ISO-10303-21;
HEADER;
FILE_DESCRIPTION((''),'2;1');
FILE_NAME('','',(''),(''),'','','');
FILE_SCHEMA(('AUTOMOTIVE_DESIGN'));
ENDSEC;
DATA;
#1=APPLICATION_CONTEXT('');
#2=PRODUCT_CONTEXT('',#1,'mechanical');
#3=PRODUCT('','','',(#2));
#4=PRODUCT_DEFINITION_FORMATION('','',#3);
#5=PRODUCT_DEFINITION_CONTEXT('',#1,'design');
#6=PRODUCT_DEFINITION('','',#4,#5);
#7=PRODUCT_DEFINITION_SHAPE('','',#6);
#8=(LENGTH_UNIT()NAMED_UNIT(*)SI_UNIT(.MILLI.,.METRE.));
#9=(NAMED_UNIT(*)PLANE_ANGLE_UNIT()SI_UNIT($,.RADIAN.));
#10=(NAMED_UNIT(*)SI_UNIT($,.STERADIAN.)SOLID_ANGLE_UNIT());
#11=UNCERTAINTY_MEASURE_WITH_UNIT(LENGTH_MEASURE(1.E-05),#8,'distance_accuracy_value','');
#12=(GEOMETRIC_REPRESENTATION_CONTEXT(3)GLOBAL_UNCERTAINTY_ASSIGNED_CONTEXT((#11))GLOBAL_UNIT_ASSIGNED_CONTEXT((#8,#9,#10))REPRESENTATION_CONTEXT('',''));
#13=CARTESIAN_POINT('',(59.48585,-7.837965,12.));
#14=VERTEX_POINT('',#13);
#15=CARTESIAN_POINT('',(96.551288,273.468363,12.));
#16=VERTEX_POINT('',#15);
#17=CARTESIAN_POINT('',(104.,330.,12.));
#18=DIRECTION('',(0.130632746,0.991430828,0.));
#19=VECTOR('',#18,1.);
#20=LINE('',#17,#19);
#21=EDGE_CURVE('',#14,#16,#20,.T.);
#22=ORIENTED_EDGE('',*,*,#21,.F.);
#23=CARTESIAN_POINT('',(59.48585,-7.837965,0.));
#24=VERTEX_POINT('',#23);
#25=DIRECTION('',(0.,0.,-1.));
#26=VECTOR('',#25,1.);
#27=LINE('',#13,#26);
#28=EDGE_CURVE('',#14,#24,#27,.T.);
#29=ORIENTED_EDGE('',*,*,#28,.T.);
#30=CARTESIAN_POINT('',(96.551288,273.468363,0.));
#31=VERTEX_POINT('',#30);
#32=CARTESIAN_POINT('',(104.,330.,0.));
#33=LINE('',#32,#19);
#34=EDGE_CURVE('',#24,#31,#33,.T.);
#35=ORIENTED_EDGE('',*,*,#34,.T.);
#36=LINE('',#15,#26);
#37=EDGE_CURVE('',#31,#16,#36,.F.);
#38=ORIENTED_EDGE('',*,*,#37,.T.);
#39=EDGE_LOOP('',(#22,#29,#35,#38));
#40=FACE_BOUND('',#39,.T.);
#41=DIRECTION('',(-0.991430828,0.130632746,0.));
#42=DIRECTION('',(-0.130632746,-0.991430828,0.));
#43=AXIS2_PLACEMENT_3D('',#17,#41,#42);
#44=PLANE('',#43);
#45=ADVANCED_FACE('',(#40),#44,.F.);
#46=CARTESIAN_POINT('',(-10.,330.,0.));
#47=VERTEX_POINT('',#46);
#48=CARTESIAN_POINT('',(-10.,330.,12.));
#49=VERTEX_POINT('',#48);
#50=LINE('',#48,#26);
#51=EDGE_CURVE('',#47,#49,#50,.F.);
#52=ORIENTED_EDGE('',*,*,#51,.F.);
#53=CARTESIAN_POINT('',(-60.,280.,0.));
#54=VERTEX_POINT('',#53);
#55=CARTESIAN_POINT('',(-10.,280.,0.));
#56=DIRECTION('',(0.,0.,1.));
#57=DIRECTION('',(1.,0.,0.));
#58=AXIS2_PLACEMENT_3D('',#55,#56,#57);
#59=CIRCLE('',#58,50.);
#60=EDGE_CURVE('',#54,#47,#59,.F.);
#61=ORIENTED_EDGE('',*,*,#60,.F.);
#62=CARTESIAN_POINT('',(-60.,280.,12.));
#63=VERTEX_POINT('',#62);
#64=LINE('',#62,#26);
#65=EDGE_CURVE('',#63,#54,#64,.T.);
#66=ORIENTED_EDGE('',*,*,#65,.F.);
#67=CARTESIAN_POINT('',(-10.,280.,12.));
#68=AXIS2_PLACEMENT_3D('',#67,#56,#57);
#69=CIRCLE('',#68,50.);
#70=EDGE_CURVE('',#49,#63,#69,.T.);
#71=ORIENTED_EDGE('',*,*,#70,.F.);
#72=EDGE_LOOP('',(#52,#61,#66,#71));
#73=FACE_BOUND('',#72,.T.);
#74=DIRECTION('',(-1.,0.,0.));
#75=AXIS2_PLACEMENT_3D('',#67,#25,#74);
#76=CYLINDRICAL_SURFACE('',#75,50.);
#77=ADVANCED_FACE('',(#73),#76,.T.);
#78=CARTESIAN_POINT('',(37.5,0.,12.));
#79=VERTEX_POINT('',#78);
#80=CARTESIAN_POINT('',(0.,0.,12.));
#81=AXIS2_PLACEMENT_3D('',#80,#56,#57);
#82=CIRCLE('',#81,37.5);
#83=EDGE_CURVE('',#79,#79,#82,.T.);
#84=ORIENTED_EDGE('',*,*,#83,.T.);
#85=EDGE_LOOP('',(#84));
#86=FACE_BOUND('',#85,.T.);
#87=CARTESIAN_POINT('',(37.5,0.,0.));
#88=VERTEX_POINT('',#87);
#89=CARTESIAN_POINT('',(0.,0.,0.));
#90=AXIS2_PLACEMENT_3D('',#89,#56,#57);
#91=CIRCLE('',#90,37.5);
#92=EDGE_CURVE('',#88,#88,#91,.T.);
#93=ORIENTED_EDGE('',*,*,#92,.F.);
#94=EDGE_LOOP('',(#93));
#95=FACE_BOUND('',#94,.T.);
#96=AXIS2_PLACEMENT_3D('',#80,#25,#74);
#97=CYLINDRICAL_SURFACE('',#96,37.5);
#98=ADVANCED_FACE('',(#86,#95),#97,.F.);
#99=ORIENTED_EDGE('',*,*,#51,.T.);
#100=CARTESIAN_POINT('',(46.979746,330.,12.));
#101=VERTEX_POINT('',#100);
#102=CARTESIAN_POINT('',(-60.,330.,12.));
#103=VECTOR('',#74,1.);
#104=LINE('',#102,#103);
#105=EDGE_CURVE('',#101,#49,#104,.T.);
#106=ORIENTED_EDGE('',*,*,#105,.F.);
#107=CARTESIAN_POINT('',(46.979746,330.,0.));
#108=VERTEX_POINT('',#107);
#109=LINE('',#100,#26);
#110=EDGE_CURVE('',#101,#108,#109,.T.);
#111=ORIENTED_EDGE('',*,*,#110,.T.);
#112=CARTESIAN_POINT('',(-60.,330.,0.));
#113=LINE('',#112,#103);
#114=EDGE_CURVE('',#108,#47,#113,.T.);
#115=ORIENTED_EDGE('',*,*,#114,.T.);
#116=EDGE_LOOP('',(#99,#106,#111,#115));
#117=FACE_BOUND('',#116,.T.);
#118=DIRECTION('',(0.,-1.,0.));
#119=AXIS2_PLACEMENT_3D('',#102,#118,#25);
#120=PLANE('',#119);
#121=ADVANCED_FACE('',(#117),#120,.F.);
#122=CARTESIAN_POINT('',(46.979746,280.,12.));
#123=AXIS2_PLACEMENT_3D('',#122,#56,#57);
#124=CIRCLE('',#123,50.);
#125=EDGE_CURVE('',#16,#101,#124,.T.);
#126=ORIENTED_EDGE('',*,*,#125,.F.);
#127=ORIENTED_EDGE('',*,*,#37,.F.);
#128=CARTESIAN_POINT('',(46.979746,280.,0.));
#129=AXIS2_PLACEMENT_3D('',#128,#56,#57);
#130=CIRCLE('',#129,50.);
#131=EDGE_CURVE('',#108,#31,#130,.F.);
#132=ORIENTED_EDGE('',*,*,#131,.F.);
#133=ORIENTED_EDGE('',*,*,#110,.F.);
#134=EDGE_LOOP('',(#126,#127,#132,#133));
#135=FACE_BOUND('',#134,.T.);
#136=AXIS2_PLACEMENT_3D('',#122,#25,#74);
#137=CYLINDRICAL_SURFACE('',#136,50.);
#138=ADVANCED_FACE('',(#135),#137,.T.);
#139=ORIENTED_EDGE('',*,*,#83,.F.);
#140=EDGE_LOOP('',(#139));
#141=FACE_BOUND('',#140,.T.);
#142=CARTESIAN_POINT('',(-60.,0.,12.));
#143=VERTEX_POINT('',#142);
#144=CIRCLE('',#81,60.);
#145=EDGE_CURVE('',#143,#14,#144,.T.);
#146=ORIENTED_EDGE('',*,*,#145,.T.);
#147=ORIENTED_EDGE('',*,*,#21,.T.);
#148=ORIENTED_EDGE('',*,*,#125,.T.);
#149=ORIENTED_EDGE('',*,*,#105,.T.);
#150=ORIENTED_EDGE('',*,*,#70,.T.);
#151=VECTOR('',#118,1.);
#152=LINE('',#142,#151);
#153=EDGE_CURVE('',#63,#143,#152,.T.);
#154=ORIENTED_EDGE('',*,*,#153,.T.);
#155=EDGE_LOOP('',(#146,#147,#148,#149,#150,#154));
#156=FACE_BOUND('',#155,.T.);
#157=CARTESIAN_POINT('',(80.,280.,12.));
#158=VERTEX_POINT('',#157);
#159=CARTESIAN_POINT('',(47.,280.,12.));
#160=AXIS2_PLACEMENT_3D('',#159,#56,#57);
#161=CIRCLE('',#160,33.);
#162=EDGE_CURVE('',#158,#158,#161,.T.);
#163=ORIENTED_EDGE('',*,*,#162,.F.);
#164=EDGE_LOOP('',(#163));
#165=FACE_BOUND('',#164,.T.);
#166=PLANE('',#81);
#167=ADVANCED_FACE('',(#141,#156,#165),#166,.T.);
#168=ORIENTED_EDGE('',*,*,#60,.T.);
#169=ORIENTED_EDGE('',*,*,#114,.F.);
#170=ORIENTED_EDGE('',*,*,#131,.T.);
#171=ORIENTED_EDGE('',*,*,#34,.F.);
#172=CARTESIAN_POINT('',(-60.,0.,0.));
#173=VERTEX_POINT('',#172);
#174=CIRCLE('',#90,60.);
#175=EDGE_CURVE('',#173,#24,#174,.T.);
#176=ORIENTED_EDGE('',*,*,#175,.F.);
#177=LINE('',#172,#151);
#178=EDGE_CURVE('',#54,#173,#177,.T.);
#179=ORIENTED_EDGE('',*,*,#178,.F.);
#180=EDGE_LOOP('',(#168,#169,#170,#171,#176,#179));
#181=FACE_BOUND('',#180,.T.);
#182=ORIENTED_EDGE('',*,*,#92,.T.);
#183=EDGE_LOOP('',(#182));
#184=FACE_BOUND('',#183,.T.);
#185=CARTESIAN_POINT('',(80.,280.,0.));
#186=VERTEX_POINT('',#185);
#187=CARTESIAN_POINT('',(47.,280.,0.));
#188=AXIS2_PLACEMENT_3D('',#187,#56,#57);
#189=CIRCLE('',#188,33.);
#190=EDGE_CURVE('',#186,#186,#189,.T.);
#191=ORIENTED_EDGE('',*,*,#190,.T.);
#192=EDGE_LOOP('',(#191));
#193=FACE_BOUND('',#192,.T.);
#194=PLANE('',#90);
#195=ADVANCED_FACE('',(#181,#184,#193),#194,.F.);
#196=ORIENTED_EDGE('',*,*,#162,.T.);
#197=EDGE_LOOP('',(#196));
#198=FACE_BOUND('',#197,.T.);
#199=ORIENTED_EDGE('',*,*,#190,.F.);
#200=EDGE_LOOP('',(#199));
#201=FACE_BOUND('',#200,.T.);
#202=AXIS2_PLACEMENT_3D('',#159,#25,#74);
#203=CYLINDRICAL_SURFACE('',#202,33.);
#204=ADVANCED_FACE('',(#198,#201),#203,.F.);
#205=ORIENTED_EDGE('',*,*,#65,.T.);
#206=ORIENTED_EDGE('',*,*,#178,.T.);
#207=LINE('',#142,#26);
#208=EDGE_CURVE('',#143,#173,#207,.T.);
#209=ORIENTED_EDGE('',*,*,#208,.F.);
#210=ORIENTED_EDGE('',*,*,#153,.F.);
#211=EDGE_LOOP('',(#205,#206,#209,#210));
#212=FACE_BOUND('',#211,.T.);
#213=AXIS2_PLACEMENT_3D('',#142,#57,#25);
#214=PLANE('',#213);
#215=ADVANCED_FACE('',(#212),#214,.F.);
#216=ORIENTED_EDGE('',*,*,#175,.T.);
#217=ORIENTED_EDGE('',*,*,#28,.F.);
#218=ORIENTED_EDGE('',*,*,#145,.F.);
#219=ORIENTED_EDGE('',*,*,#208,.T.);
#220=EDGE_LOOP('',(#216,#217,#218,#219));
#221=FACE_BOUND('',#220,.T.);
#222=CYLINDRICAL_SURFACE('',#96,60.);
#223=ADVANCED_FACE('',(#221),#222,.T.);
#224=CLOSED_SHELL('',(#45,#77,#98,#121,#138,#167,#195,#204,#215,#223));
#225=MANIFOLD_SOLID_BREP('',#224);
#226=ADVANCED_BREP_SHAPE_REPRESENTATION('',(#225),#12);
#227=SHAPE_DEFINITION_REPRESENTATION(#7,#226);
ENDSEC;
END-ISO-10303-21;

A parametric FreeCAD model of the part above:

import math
import FreeCAD as App
import Part
import Sketcher
from FreeCAD import Vector


def edges_at(feature, points):
    """Names of the edges that pass closest to the given points."""
    edges = feature.Shape.Edges
    near = lambda p: min(range(len(edges)), key=lambda i: edges[i].distToShape(Part.Vertex(*p))[0])
    return sorted({f"Edge{near(p) + 1}" for p in points})

doc = App.newDocument("Part")
body = doc.addObject("PartDesign::Body", "Body")

# Sketch on XY plane
sketch1 = body.newObject("Sketcher::SketchObject", "Sketch")
sketch1.AttachmentSupport = (doc.getObject("XY_Plane"), [""])
sketch1.MapMode = "FlatFace"
sketch1.addGeometry(Part.LineSegment(Vector(-60, 330, 0), Vector(-60, 0, 0)), False)
sketch1.addGeometry(Part.ArcOfCircle(Part.Circle(Vector(0, 0, 0), Vector(0, 0, 1), 60), math.radians(180), math.radians(352)), False)
sketch1.addGeometry(Part.LineSegment(Vector(59, -8, 0), Vector(104, 330, 0)), False)
sketch1.addGeometry(Part.LineSegment(Vector(104, 330, 0), Vector(-60, 330, 0)), False)
sketch1.addGeometry(Part.Circle(Vector(0, 0, 0), Vector(0, 0, 1), 38), False)
sketch1.addGeometry(Part.Circle(Vector(47, 280, 0), Vector(0, 0, 1), 33), False)
sketch1.addConstraint(Sketcher.Constraint("Tangent", 0, 2, 1, 1))
sketch1.addConstraint(Sketcher.Constraint("Tangent", 1, 2, 2, 1))
sketch1.addConstraint(Sketcher.Constraint("Coincident", 2, 2, 3, 1))
sketch1.addConstraint(Sketcher.Constraint("Coincident", 3, 2, 0, 1))
sketch1.addConstraint(Sketcher.Constraint("Vertical", 0))
sketch1.addConstraint(Sketcher.Constraint("Horizontal", 3))
sketch1.addConstraint(Sketcher.Constraint("Coincident", 1, 3, -1, 1))
sketch1.addConstraint(Sketcher.Constraint("Coincident", 4, 3, -1, 1))
sketch1.addConstraint(Sketcher.Constraint("Diameter", 4, 75.0))
sketch1.addConstraint(Sketcher.Constraint("Diameter", 5, 66.0))
sketch1.addConstraint(Sketcher.Constraint("Radius", 1, 60.0))
sketch1.addConstraint(Sketcher.Constraint("DistanceX", 3, 2, 3, 1, 164.0))
sketch1.addConstraint(Sketcher.Constraint("DistanceY", 0, 2, 0, 1, 330.0))
sketch1.addConstraint(Sketcher.Constraint("DistanceX", -1, 1, 5, 3, 47.0))
sketch1.addConstraint(Sketcher.Constraint("DistanceY", -1, 1, 5, 3, 280.0))
pad1 = body.newObject("PartDesign::Pad", "Pad")
pad1.Profile = sketch1
pad1.Length = 12
doc.recompute()

fillet = body.newObject("PartDesign::Fillet", "Fillet")
fillet.Base = (pad1, edges_at(pad1, [(-60, 330, 6), (104, 330, 6)]))
fillet.Radius = 50

doc.recompute()
